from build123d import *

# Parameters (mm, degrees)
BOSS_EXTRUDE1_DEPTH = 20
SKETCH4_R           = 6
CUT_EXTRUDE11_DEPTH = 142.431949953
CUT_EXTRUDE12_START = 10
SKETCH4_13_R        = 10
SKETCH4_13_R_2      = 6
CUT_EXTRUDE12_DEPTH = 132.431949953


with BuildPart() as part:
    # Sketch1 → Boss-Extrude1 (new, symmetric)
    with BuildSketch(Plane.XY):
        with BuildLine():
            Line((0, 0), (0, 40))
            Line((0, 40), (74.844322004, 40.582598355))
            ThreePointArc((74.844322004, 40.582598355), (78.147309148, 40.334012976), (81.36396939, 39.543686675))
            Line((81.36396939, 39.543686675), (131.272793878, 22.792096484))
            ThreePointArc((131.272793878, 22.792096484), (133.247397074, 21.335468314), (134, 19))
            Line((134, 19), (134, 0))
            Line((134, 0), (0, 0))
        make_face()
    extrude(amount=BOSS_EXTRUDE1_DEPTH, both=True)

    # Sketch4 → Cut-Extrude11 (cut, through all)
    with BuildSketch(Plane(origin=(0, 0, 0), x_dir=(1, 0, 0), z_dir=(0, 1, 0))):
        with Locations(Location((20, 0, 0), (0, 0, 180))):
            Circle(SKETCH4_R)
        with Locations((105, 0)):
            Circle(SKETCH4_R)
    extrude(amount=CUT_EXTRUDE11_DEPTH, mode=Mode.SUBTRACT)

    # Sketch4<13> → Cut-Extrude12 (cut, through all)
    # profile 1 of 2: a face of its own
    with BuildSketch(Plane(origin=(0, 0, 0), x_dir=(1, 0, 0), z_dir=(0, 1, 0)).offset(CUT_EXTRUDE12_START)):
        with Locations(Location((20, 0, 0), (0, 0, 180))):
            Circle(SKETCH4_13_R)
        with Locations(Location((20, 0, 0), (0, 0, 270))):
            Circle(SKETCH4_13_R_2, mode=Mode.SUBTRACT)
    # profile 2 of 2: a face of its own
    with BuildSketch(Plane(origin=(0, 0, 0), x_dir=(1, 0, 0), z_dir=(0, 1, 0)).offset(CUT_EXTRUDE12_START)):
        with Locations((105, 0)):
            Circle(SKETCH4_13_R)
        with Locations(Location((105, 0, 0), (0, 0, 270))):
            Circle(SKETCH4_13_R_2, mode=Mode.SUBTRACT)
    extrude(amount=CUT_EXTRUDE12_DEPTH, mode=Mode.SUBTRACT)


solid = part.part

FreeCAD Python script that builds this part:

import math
import FreeCAD as App
import Part
import Sketcher

V = App.Vector
Q = App.Units.Quantity

doc = App.newDocument("Part")
body = doc.addObject("PartDesign::Body", "Body")

# Sketch on XY plane
sketch1 = doc.addObject("Sketcher::SketchObject", "Sketch")
body.addObject(sketch1)
sketch1.AttachmentSupport = (doc.XY_Plane, [""])
sketch1.MapMode = "FlatFace"
sketch1.addGeometry(Part.LineSegment(V(0, 40, 0), V(0, 0, 0)), False)
sketch1.addGeometry(Part.LineSegment(V(0, 0, 0), V(134, 0, 0)), False)
sketch1.addGeometry(Part.LineSegment(V(134, 0, 0), V(134, 19, 0)), False)
sketch1.addGeometry(Part.ArcOfCircle(Part.Circle(V(130, 19, 0), V(0, 0, 1), 4), math.radians(0), math.radians(71.445989)), False)
sketch1.addGeometry(Part.LineSegment(V(131.272794, 22.792096, 0), V(81.363969, 39.543687, 0)), False)
sketch1.addGeometry(Part.ArcOfCircle(Part.Circle(V(75, 20.583204, 0), V(0, 0, 1), 20), math.radians(71.445989), math.radians(90.445989)), False)
sketch1.addGeometry(Part.LineSegment(V(74.844322, 40.582598, 0), V(0, 40, 0)), False)
sketch1.addConstraint(Sketcher.Constraint("Coincident", 0, 2, 1, 1))
sketch1.addConstraint(Sketcher.Constraint("Coincident", 1, 2, 2, 1))
sketch1.addConstraint(Sketcher.Constraint("Tangent", 2, 2, 3, 1))
sketch1.addConstraint(Sketcher.Constraint("Tangent", 3, 2, 4, 1))
sketch1.addConstraint(Sketcher.Constraint("Tangent", 4, 2, 5, 1))
sketch1.addConstraint(Sketcher.Constraint("Tangent", 5, 2, 6, 1))
sketch1.addConstraint(Sketcher.Constraint("Coincident", 6, 2, 0, 1))
sketch1.addConstraint(Sketcher.Constraint("Vertical", 0))
sketch1.addConstraint(Sketcher.Constraint("Horizontal", 1))
sketch1.addConstraint(Sketcher.Constraint("Vertical", 2))
sketch1.addConstraint(Sketcher.Constraint("Coincident", 0, 2, -1, 1))
sketch1.addConstraint(Sketcher.Constraint("Radius", 3, Q("4 mm")))
sketch1.addConstraint(Sketcher.Constraint("Radius", 5, Q("20 mm")))
sketch1.addConstraint(Sketcher.Constraint("DistanceX", 1, 1, 1, 2, Q("134 mm")))
sketch1.addConstraint(Sketcher.Constraint("DistanceY", 0, 2, 0, 1, Q("40 mm")))
sketch1.addConstraint(Sketcher.Constraint("DistanceY", 2, 1, 2, 2, Q("19 mm")))
sketch1.addConstraint(Sketcher.Constraint("DistanceX", -1, 1, 5, 3, Q("75 mm")))
sketch1.addConstraint(Sketcher.Constraint("Distance", 4, Q("52.6451 mm")))
pad1 = doc.addObject("PartDesign::Pad", "Pad")
body.addObject(pad1)
pad1.Profile = sketch1
pad1.Length = 40
pad1.Midplane = True

# Sketch on XZ plane
sketch2 = doc.addObject("Sketcher::SketchObject", "Sketch001")
body.addObject(sketch2)
sketch2.AttachmentSupport = (doc.XZ_Plane, [""])
sketch2.MapMode = "FlatFace"
sketch2.addGeometry(Part.Circle(V(20, 0, 0), V(0, 0, 1), 6), False)
sketch2.addGeometry(Part.Circle(V(105, 0, 0), V(0, 0, 1), 6), False)
sketch2.addConstraint(Sketcher.Constraint("Equal", 0, 1))
sketch2.addConstraint(Sketcher.Constraint("PointOnObject", 0, 3, -1))
sketch2.addConstraint(Sketcher.Constraint("PointOnObject", 1, 3, -1))
sketch2.addConstraint(Sketcher.Constraint("Diameter", 0, Q("12 mm")))
sketch2.addConstraint(Sketcher.Constraint("DistanceX", -1, 1, 0, 3, Q("20 mm")))
sketch2.addConstraint(Sketcher.Constraint("DistanceX", -1, 1, 1, 3, Q("105 mm")))
pocket1 = doc.addObject("PartDesign::Pocket", "Pocket")
body.addObject(pocket1)
pocket1.Profile = sketch2
pocket1.Type = "ThroughAll"

# Sketch on XZ plane
sketch3 = doc.addObject("Sketcher::SketchObject", "Sketch002")
body.addObject(sketch3)
sketch3.AttachmentSupport = (doc.XZ_Plane, [""])
sketch3.MapMode = "FlatFace"
sketch3.AttachmentOffset = App.Placement(V(0, 0, -10), App.Rotation())
sketch3.addGeometry(Part.Circle(V(20, 0, 0), V(0, 0, 1), 10), False)
sketch3.addGeometry(Part.Circle(V(20, 0, 0), V(0, 0, 1), 6), False)
sketch3.addGeometry(Part.Circle(V(105, 0, 0), V(0, 0, 1), 10), False)
sketch3.addGeometry(Part.Circle(V(105, 0, 0), V(0, 0, 1), 6), False)
sketch3.addConstraint(Sketcher.Constraint("Coincident", 1, 3, 0, 3))
sketch3.addConstraint(Sketcher.Constraint("Coincident", 3, 3, 2, 3))
sketch3.addConstraint(Sketcher.Constraint("Equal", 0, 2))
sketch3.addConstraint(Sketcher.Constraint("Equal", 1, 3))
sketch3.addConstraint(Sketcher.Constraint("PointOnObject", 0, 3, -1))
sketch3.addConstraint(Sketcher.Constraint("PointOnObject", 2, 3, -1))
sketch3.addConstraint(Sketcher.Constraint("Diameter", 0, Q("20 mm")))
sketch3.addConstraint(Sketcher.Constraint("Diameter", 1, Q("12 mm")))
sketch3.addConstraint(Sketcher.Constraint("DistanceX", -1, 1, 0, 3, Q("20 mm")))
sketch3.addConstraint(Sketcher.Constraint("DistanceX", -1, 1, 2, 3, Q("105 mm")))
pocket2 = doc.addObject("PartDesign::Pocket", "Pocket001")
body.addObject(pocket2)
pocket2.Profile = sketch3
pocket2.Length = 132.43195

doc.recompute()
